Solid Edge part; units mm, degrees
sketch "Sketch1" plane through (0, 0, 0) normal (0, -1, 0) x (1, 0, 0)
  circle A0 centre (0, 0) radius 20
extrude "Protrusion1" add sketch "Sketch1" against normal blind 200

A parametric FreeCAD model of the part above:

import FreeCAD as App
import Part
import Sketcher

doc = App.newDocument("Part")
body = doc.addObject("PartDesign::Body", "Body")

# Sketch on XZ plane
sketch1 = body.newObject("Sketcher::SketchObject", "Sketch")
sketch1.AttachmentSupport = (doc.getObject("XZ_Plane"), [""])
sketch1.MapMode = "FlatFace"
sketch1.addGeometry(Part.Circle(App.Vector(0, 0, 0), App.Vector(0, 0, 1), 20), False)
sketch1.addConstraint(Sketcher.Constraint("Coincident", 0, 3, -1, 1))
sketch1.addConstraint(Sketcher.Constraint("Diameter", 0, 40.0))
pad1 = body.newObject("PartDesign::Pad", "Pad")
pad1.Profile = sketch1
pad1.Length = 200
pad1.Reversed = True

doc.recompute()
